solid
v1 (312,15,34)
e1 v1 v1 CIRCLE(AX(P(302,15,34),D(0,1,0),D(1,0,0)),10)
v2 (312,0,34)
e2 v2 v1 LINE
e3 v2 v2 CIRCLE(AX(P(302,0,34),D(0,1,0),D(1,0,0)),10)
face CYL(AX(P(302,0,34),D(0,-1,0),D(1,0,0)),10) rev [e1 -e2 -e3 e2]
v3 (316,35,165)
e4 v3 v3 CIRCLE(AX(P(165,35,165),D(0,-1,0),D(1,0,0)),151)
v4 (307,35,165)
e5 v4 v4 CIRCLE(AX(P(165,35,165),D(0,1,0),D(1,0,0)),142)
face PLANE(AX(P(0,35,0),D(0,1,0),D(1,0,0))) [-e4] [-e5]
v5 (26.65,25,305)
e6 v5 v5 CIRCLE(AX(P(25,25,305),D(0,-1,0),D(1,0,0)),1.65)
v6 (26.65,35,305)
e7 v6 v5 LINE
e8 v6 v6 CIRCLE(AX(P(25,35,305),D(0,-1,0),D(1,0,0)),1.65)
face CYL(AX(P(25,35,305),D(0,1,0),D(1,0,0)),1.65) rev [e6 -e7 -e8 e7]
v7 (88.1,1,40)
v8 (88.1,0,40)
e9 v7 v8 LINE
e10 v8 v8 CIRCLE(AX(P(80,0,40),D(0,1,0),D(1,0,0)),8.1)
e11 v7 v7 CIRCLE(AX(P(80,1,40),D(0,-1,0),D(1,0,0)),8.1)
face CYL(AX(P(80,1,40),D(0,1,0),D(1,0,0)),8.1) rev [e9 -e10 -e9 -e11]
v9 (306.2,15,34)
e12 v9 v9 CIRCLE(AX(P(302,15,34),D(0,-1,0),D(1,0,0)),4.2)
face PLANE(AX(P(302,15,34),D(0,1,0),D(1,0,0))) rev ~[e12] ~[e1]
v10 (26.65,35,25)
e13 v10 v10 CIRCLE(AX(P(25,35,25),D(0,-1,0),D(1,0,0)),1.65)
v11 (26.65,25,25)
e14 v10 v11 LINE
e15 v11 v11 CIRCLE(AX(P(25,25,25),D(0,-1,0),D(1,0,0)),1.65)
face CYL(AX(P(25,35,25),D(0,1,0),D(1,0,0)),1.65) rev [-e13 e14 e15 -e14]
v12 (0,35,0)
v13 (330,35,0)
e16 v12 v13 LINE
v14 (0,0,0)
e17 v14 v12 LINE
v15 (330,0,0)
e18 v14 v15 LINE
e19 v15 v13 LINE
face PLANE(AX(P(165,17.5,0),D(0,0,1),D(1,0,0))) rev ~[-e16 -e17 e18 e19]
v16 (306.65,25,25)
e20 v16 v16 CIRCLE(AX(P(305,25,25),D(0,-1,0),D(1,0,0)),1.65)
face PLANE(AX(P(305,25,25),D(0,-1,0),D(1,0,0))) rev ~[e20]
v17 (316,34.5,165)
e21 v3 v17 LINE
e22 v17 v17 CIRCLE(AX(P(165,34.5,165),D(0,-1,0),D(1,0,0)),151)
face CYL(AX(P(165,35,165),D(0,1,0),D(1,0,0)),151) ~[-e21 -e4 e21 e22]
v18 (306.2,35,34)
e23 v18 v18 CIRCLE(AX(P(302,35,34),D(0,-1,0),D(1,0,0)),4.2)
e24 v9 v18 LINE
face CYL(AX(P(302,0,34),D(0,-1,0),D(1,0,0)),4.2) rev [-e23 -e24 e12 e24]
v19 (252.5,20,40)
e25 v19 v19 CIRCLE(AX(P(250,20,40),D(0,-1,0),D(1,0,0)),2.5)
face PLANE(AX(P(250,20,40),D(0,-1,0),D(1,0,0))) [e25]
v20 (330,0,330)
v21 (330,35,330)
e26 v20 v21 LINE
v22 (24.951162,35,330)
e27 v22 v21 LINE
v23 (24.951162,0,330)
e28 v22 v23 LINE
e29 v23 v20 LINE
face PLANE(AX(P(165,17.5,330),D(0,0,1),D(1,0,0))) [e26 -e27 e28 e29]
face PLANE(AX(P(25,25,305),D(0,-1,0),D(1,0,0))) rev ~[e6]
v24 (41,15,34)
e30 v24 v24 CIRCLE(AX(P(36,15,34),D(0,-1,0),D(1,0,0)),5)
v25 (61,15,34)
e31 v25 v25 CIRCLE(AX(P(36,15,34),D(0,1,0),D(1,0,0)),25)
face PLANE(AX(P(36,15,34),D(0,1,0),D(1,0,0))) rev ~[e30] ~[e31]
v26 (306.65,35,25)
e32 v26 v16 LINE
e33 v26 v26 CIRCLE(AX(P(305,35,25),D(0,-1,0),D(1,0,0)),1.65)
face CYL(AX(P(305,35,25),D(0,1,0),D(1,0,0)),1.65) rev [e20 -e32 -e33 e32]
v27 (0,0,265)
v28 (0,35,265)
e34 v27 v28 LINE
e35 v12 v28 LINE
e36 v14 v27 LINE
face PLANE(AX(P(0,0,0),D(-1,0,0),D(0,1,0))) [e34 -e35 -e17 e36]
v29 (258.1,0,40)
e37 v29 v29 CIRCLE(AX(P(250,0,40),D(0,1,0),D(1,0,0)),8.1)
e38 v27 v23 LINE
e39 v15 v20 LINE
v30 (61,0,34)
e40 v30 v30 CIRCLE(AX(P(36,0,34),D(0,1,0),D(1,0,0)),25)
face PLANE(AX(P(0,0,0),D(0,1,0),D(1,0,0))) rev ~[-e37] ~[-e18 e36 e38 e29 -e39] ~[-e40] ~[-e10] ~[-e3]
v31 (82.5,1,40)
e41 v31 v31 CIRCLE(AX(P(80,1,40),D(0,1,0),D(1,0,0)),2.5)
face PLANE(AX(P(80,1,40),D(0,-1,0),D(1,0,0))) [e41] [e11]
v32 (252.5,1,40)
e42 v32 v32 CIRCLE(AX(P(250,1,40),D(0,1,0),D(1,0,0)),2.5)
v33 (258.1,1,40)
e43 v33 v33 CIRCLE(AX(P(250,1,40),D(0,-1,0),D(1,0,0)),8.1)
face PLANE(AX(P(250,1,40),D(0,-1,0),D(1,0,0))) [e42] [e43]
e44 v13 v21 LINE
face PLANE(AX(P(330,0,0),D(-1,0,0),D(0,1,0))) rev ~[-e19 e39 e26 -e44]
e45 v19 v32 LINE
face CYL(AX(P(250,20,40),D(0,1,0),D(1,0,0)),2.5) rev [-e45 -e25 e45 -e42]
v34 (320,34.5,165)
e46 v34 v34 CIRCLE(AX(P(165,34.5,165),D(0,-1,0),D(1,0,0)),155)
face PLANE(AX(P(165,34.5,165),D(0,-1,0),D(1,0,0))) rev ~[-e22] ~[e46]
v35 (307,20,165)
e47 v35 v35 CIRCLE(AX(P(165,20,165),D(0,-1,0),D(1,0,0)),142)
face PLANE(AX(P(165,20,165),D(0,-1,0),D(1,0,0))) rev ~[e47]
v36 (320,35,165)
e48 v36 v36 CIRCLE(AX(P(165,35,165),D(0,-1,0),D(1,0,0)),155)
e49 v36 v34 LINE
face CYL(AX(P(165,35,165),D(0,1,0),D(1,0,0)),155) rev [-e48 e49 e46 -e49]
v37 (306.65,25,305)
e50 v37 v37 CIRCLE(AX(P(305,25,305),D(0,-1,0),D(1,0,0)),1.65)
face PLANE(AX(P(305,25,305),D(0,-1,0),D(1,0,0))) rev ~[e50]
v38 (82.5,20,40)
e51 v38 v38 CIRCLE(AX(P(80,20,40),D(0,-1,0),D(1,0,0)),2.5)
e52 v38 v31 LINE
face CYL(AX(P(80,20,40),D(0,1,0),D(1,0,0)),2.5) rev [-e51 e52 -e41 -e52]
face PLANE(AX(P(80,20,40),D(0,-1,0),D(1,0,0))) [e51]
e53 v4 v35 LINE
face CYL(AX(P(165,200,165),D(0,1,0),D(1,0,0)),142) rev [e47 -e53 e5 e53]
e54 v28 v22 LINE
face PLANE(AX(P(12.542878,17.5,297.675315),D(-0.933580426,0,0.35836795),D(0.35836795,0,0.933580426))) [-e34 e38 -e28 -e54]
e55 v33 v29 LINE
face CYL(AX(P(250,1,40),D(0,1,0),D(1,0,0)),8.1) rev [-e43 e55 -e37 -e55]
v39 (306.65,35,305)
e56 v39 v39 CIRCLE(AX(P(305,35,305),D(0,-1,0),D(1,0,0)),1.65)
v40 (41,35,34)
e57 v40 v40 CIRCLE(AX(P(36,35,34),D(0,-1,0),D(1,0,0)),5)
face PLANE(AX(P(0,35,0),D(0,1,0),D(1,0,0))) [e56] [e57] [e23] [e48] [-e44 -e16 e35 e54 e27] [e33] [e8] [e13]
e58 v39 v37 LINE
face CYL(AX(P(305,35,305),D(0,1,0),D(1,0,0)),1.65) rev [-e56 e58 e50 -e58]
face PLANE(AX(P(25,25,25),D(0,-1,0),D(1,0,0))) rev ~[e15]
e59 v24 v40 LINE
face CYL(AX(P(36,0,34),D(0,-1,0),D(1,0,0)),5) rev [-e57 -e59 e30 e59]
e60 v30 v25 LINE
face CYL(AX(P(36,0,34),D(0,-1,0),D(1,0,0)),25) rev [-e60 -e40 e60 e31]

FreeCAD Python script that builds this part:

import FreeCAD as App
import Part
import Sketcher
from FreeCAD import Vector
Q = App.Units.Quantity


def add_polygon(sketch, points):
    """Adds a closed chain of lines whose ends are joined by coincident constraints."""
    first, n = sketch.GeometryCount, len(points)
    for a, b in zip(points, points[1:] + points[:1]):
        sketch.addGeometry(Part.LineSegment(App.Vector(*a, 0), App.Vector(*b, 0)), False)
    for i in range(n):
        sketch.addConstraint(Sketcher.Constraint("Coincident", first + i, 2, first + (i + 1) % n, 1))

doc = App.newDocument("Part")
body = doc.addObject("PartDesign::Body", "Body")

# Sketch on XZ plane
sketch1 = doc.addObject("Sketcher::SketchObject", "Sketch")
body.addObject(sketch1)
sketch1.AttachmentSupport = (doc.XZ_Plane, [""])
sketch1.MapMode = "FlatFace"
sketch1.AttachmentOffset = App.Placement(Vector(0, 0, -35), App.Rotation())
sketch1.addGeometry(Part.Circle(Vector(25, 25, 0), Vector(0, 0, 1), 1.6), False)
sketch1.addConstraint([
    Sketcher.Constraint("Diameter", 0, Q("3.3 mm")),
    Sketcher.Constraint("DistanceX", -1, 1, 0, 3, Q("25 mm")),
    Sketcher.Constraint("DistanceY", -1, 1, 0, 3, Q("25 mm")),
])
pad1 = doc.addObject("PartDesign::Pad", "Pad")
body.addObject(pad1)
pad1.Profile = sketch1
pad1.Length = 10
body2 = doc.addObject("PartDesign::Body", "Body001")

# Sketch on XZ plane
sketch2 = doc.addObject("Sketcher::SketchObject", "Sketch001")
body2.addObject(sketch2)
sketch2.AttachmentSupport = (doc.getObject("XZ_Plane001"), [""])
sketch2.MapMode = "FlatFace"
sketch2.AttachmentOffset = App.Placement(Vector(0, 0, -35), App.Rotation())
sketch2.addGeometry(Part.Circle(Vector(305, 25, 0), Vector(0, 0, 1), 1.6), False)
sketch2.addConstraint([
    Sketcher.Constraint("Diameter", 0, Q("3.3 mm")),
    Sketcher.Constraint("DistanceX", -1, 1, 0, 3, Q("305 mm")),
    Sketcher.Constraint("DistanceY", -1, 1, 0, 3, Q("25 mm")),
])
pad2 = doc.addObject("PartDesign::Pad", "Pad001")
body2.addObject(pad2)
pad2.Profile = sketch2
pad2.Length = 10
body3 = doc.addObject("PartDesign::Body", "Body002")

# Sketch on XZ plane
sketch3 = doc.addObject("Sketcher::SketchObject", "Sketch002")
body3.addObject(sketch3)
sketch3.AttachmentSupport = (doc.getObject("XZ_Plane002"), [""])
sketch3.MapMode = "FlatFace"
sketch3.AttachmentOffset = App.Placement(Vector(0, 0, -35), App.Rotation())
sketch3.addGeometry(Part.Circle(Vector(25, 305, 0), Vector(0, 0, 1), 1.6), False)
sketch3.addConstraint([
    Sketcher.Constraint("Diameter", 0, Q("3.3 mm")),
    Sketcher.Constraint("DistanceX", -1, 1, 0, 3, Q("25 mm")),
    Sketcher.Constraint("DistanceY", -1, 1, 0, 3, Q("305 mm")),
])
pad3 = doc.addObject("PartDesign::Pad", "Pad002")
body3.addObject(pad3)
pad3.Profile = sketch3
pad3.Length = 10
body4 = doc.addObject("PartDesign::Body", "Body003")
body4.AllowCompound = True

# Sketch on XZ plane
sketch4 = doc.addObject("Sketcher::SketchObject", "Sketch003")
body4.addObject(sketch4)
sketch4.AttachmentSupport = (doc.getObject("XZ_Plane003"), [""])
sketch4.MapMode = "FlatFace"
sketch4.AttachmentOffset = App.Placement(Vector(0, 0, -35), App.Rotation())
sketch4.addGeometry(Part.Circle(Vector(305, 305, 0), Vector(0, 0, 1), 1.6), False)
sketch4.addConstraint([
    Sketcher.Constraint("Diameter", 0, Q("3.3 mm")),
    Sketcher.Constraint("DistanceX", -1, 1, 0, 3, Q("305 mm")),
    Sketcher.Constraint("DistanceY", -1, 1, 0, 3, Q("305 mm")),
])
pad4 = doc.addObject("PartDesign::Pad", "Pad003")
body4.addObject(pad4)
pad4.Profile = sketch4
pad4.Length = 10
doc.recompute()

boolean = doc.addObject("PartDesign::Boolean", "Boolean")
body4.addObject(boolean)
boolean.Type = "Fuse"
boolean.addObjects([body])
doc.recompute()

boolean2 = doc.addObject("PartDesign::Boolean", "Boolean001")
body4.addObject(boolean2)
boolean2.Type = "Fuse"
boolean2.addObjects([body2])
doc.recompute()

boolean3 = doc.addObject("PartDesign::Boolean", "Boolean002")
body4.addObject(boolean3)
boolean3.Type = "Fuse"
boolean3.addObjects([body3])
body5 = doc.addObject("PartDesign::Body", "Body004")

# Sketch on XZ plane
sketch5 = doc.addObject("Sketcher::SketchObject", "Sketch004")
body5.addObject(sketch5)
sketch5.AttachmentSupport = (doc.getObject("XZ_Plane004"), [""])
sketch5.MapMode = "FlatFace"
sketch5.AttachmentOffset = App.Placement(Vector(0, 0, -1), App.Rotation())
sketch5.addGeometry(Part.Circle(Vector(80, 40, 0), Vector(0, 0, 1), 8), False)
sketch5.addConstraint([
    Sketcher.Constraint("Diameter", 0, Q("16.2 mm")),
    Sketcher.Constraint("DistanceX", -1, 1, 0, 3, Q("80 mm")),
    Sketcher.Constraint("DistanceY", -1, 1, 0, 3, Q("40 mm")),
])
pad5 = doc.addObject("PartDesign::Pad", "Pad004")
body5.addObject(pad5)
pad5.Profile = sketch5
pad5.Length = 20
body6 = doc.addObject("PartDesign::Body", "Body005")
body6.AllowCompound = True

# Sketch on XZ plane
sketch6 = doc.addObject("Sketcher::SketchObject", "Sketch005")
body6.addObject(sketch6)
sketch6.AttachmentSupport = (doc.getObject("XZ_Plane005"), [""])
sketch6.MapMode = "FlatFace"
sketch6.AttachmentOffset = App.Placement(Vector(0, 0, -1), App.Rotation())
sketch6.addGeometry(Part.Circle(Vector(250, 40, 0), Vector(0, 0, 1), 8), False)
sketch6.addConstraint([
    Sketcher.Constraint("Diameter", 0, Q("16.2 mm")),
    Sketcher.Constraint("DistanceX", -1, 1, 0, 3, Q("250 mm")),
    Sketcher.Constraint("DistanceY", -1, 1, 0, 3, Q("40 mm")),
])
pad6 = doc.addObject("PartDesign::Pad", "Pad005")
body6.addObject(pad6)
pad6.Profile = sketch6
pad6.Length = 20
doc.recompute()

boolean4 = doc.addObject("PartDesign::Boolean", "Boolean003")
body6.addObject(boolean4)
boolean4.Type = "Fuse"
boolean4.addObjects([body5])
body7 = doc.addObject("PartDesign::Body", "Body006")

# Sketch on XZ plane
sketch7 = doc.addObject("Sketcher::SketchObject", "Sketch006")
body7.addObject(sketch7)
sketch7.AttachmentSupport = (doc.getObject("XZ_Plane006"), [""])
sketch7.MapMode = "FlatFace"
sketch7.AttachmentOffset = App.Placement(Vector(0, 0, -20), App.Rotation())
sketch7.addGeometry(Part.Circle(Vector(250, 40, 0), Vector(0, 0, 1), 2.5), False)
sketch7.addConstraint([
    Sketcher.Constraint("Diameter", 0, Q("5 mm")),
    Sketcher.Constraint("DistanceX", -1, 1, 0, 3, Q("250 mm")),
    Sketcher.Constraint("DistanceY", -1, 1, 0, 3, Q("40 mm")),
])
pad7 = doc.addObject("PartDesign::Pad", "Pad006")
body7.addObject(pad7)
pad7.Profile = sketch7
pad7.Length = 20
body8 = doc.addObject("PartDesign::Body", "Body007")
body8.AllowCompound = True

# Sketch on XZ plane
sketch8 = doc.addObject("Sketcher::SketchObject", "Sketch007")
body8.addObject(sketch8)
sketch8.AttachmentSupport = (doc.getObject("XZ_Plane007"), [""])
sketch8.MapMode = "FlatFace"
sketch8.AttachmentOffset = App.Placement(Vector(0, 0, -20), App.Rotation())
sketch8.addGeometry(Part.Circle(Vector(80, 40, 0), Vector(0, 0, 1), 2.5), False)
sketch8.addConstraint([
    Sketcher.Constraint("Diameter", 0, Q("5 mm")),
    Sketcher.Constraint("DistanceX", -1, 1, 0, 3, Q("80 mm")),
    Sketcher.Constraint("DistanceY", -1, 1, 0, 3, Q("40 mm")),
])
pad8 = doc.addObject("PartDesign::Pad", "Pad007")
body8.addObject(pad8)
pad8.Profile = sketch8
pad8.Length = 20
doc.recompute()

boolean5 = doc.addObject("PartDesign::Boolean", "Boolean004")
body8.addObject(boolean5)
boolean5.Type = "Fuse"
boolean5.addObjects([body7])
body9 = doc.addObject("PartDesign::Body", "Body008")

# Sketch on XZ plane
sketch9 = doc.addObject("Sketcher::SketchObject", "Sketch008")
body9.addObject(sketch9)
sketch9.AttachmentSupport = (doc.getObject("XZ_Plane008"), [""])
sketch9.MapMode = "FlatFace"
sketch9.AttachmentOffset = App.Placement(Vector(0, 0, -200), App.Rotation())
sketch9.addGeometry(Part.Circle(Vector(165, 165, 0), Vector(0, 0, 1), 142), False)
sketch9.addConstraint([
    Sketcher.Constraint("Diameter", 0, Q("284 mm")),
    Sketcher.Constraint("DistanceX", -1, 1, 0, 3, Q("165 mm")),
    Sketcher.Constraint("DistanceY", -1, 1, 0, 3, Q("165 mm")),
])
pad9 = doc.addObject("PartDesign::Pad", "Pad008")
body9.addObject(pad9)
pad9.Profile = sketch9
pad9.Length = 180
body10 = doc.addObject("PartDesign::Body", "Body009")

# Sketch on XY plane
sketch10 = doc.addObject("Sketcher::SketchObject", "Sketch009")
body10.addObject(sketch10)
sketch10.AttachmentSupport = (doc.getObject("XY_Plane009"), [""])
sketch10.MapMode = "FlatFace"
sketch10.addGeometry(Part.Circle(Vector(0, 0, 0), Vector(0, 0, 1), 151), False)
sketch10.addConstraint([
    Sketcher.Constraint("Coincident", 0, 3, -1, 1),
    Sketcher.Constraint("Diameter", 0, Q("302 mm")),
])
pad10 = doc.addObject("PartDesign::Pad", "Pad009")
body10.addObject(pad10)
pad10.Profile = sketch10
pad10.Length = 0.5
body11 = doc.addObject("PartDesign::Body", "Body010")

# Sketch on XY plane
sketch11 = doc.addObject("Sketcher::SketchObject", "Sketch010")
body11.addObject(sketch11)
sketch11.AttachmentSupport = (doc.getObject("XY_Plane010"), [""])
sketch11.MapMode = "FlatFace"
sketch11.addGeometry(Part.Circle(Vector(0, 0, 0), Vector(0, 0, 1), 155), False)
sketch11.addConstraint([
    Sketcher.Constraint("Coincident", 0, 3, -1, 1),
    Sketcher.Constraint("Diameter", 0, Q("310 mm")),
])
pad11 = doc.addObject("PartDesign::Pad", "Pad010")
body11.addObject(pad11)
pad11.Profile = sketch11
pad11.Length = 0.5
doc.recompute()

boolean6 = doc.addObject("PartDesign::Boolean", "Boolean005")
body11.addObject(boolean6)
boolean6.Type = "Cut"
boolean6.addObjects([body10])
body12 = doc.addObject("PartDesign::Body", "Body011")
doc.recompute()

body11.Placement = App.Placement(Vector(165, 35, 165), App.Rotation(Vector(1, 0, 0), 90))
boolean7 = doc.addObject("PartDesign::Boolean", "Boolean006")
body12.addObject(boolean7)
boolean7.Type = "Fuse"
boolean7.addObjects([body11])
body13 = doc.addObject("PartDesign::Body", "Body012")

# Sketch on XZ plane
sketch12 = doc.addObject("Sketcher::SketchObject", "Sketch011")
body13.addObject(sketch12)
sketch12.AttachmentSupport = (doc.getObject("XZ_Plane012"), [""])
sketch12.MapMode = "FlatFace"
sketch12.addGeometry(Part.Circle(Vector(36, 34, 0), Vector(0, 0, 1), 25), False)
sketch12.addConstraint([
    Sketcher.Constraint("Diameter", 0, Q("50 mm")),
    Sketcher.Constraint("DistanceX", -1, 1, 0, 3, Q("36 mm")),
    Sketcher.Constraint("DistanceY", -1, 1, 0, 3, Q("34 mm")),
])
pad12 = doc.addObject("PartDesign::Pad", "Pad011")
body13.addObject(pad12)
pad12.Profile = sketch12
pad12.Length = 15
pad12.Reversed = True
body14 = doc.addObject("PartDesign::Body", "Body013")

# Sketch on XZ plane
sketch13 = doc.addObject("Sketcher::SketchObject", "Sketch012")
body14.addObject(sketch13)
sketch13.AttachmentSupport = (doc.getObject("XZ_Plane013"), [""])
sketch13.MapMode = "FlatFace"
sketch13.addGeometry(Part.Circle(Vector(36, 34, 0), Vector(0, 0, 1), 5), False)
sketch13.addConstraint([
    Sketcher.Constraint("Diameter", 0, Q("10 mm")),
    Sketcher.Constraint("DistanceX", -1, 1, 0, 3, Q("36 mm")),
    Sketcher.Constraint("DistanceY", -1, 1, 0, 3, Q("34 mm")),
])
pad13 = doc.addObject("PartDesign::Pad", "Pad012")
body14.addObject(pad13)
pad13.Profile = sketch13
pad13.Length = 40
pad13.Reversed = True
doc.recompute()

boolean8 = doc.addObject("PartDesign::Boolean", "Boolean007")
body14.addObject(boolean8)
boolean8.Type = "Fuse"
boolean8.addObjects([body13])
body15 = doc.addObject("PartDesign::Body", "Body014")

# Sketch on XZ plane
sketch14 = doc.addObject("Sketcher::SketchObject", "Sketch013")
body15.addObject(sketch14)
sketch14.AttachmentSupport = (doc.getObject("XZ_Plane014"), [""])
sketch14.MapMode = "FlatFace"
sketch14.addGeometry(Part.Circle(Vector(302, 34, 0), Vector(0, 0, 1), 4.2), False)
sketch14.addConstraint([
    Sketcher.Constraint("Diameter", 0, Q("8.4 mm")),
    Sketcher.Constraint("DistanceX", -1, 1, 0, 3, Q("302 mm")),
    Sketcher.Constraint("DistanceY", -1, 1, 0, 3, Q("34 mm")),
])
pad14 = doc.addObject("PartDesign::Pad", "Pad013")
body15.addObject(pad14)
pad14.Profile = sketch14
pad14.Length = 40
pad14.Reversed = True
body16 = doc.addObject("PartDesign::Body", "Body015")
body16.AllowCompound = True

# Sketch on XZ plane
sketch15 = doc.addObject("Sketcher::SketchObject", "Sketch014")
body16.addObject(sketch15)
sketch15.AttachmentSupport = (doc.getObject("XZ_Plane015"), [""])
sketch15.MapMode = "FlatFace"
sketch15.addGeometry(Part.Circle(Vector(302, 34, 0), Vector(0, 0, 1), 10), False)
sketch15.addConstraint([
    Sketcher.Constraint("Diameter", 0, Q("20 mm")),
    Sketcher.Constraint("DistanceX", -1, 1, 0, 3, Q("302 mm")),
    Sketcher.Constraint("DistanceY", -1, 1, 0, 3, Q("34 mm")),
])
pad15 = doc.addObject("PartDesign::Pad", "Pad014")
body16.addObject(pad15)
pad15.Profile = sketch15
pad15.Length = 15
pad15.Reversed = True
doc.recompute()

boolean9 = doc.addObject("PartDesign::Boolean", "Boolean008")
body16.addObject(boolean9)
boolean9.Type = "Fuse"
boolean9.addObjects([body15])
doc.recompute()

boolean10 = doc.addObject("PartDesign::Boolean", "Boolean009")
body16.addObject(boolean10)
boolean10.Type = "Fuse"
boolean10.addObjects([body14])
body17 = doc.addObject("PartDesign::Body", "Body016")

# Sketch on XY plane
sketch16 = doc.addObject("Sketcher::SketchObject", "Sketch015")
body17.addObject(sketch16)
sketch16.AttachmentSupport = (doc.getObject("XY_Plane016"), [""])
sketch16.MapMode = "FlatFace"
add_polygon(sketch16, [(0, 35), (0, 0), (70, 0), (70, 35)])  # lines 0-3
sketch16.addConstraint([
    Sketcher.Constraint("Vertical", 0),
    Sketcher.Constraint("Horizontal", 1),
    Sketcher.Constraint("Vertical", 2),
    Sketcher.Constraint("Horizontal", 3),
    Sketcher.Constraint("Coincident", 0, 2, -1, 1),
    Sketcher.Constraint("DistanceX", 1, 1, 1, 2, Q("70 mm")),
    Sketcher.Constraint("DistanceY", 0, 2, 0, 1, Q("35 mm")),
])
pad16 = doc.addObject("PartDesign::Pad", "Pad015")
body17.addObject(pad16)
pad16.Profile = sketch16
pad16.Length = 50
body18 = doc.addObject("PartDesign::Body", "Body017")
doc.recompute()

body17.Placement = App.Placement(Vector(0, 0, 265), App.Rotation(Vector(0, -1, 0), 69))
boolean11 = doc.addObject("PartDesign::Boolean", "Boolean010")
body18.addObject(boolean11)
boolean11.Type = "Fuse"
boolean11.addObjects([body17])
body19 = doc.addObject("PartDesign::Body", "Body018")

# Sketch on XY plane
sketch17 = doc.addObject("Sketcher::SketchObject", "Sketch016")
body19.addObject(sketch17)
sketch17.AttachmentSupport = (doc.getObject("XY_Plane018"), [""])
sketch17.MapMode = "FlatFace"
add_polygon(sketch17, [(0, 35), (0, 0), (330, 0), (330, 35)])  # lines 0-3
sketch17.addConstraint([
    Sketcher.Constraint("Vertical", 0),
    Sketcher.Constraint("Horizontal", 1),
    Sketcher.Constraint("Vertical", 2),
    Sketcher.Constraint("Horizontal", 3),
    Sketcher.Constraint("Coincident", 0, 2, -1, 1),
    Sketcher.Constraint("DistanceX", 1, 1, 1, 2, Q("330 mm")),
    Sketcher.Constraint("DistanceY", 0, 2, 0, 1, Q("35 mm")),
])
pad17 = doc.addObject("PartDesign::Pad", "Pad016")
body19.addObject(pad17)
pad17.Profile = sketch17
pad17.Length = 330
doc.recompute()

boolean12 = doc.addObject("PartDesign::Boolean", "Boolean011")
body19.addObject(boolean12)
boolean12.Type = "Cut"
boolean12.addObjects([body18])
doc.recompute()

boolean13 = doc.addObject("PartDesign::Boolean", "Boolean012")
body19.addObject(boolean13)
boolean13.Type = "Cut"
boolean13.addObjects([body16])
doc.recompute()

boolean14 = doc.addObject("PartDesign::Boolean", "Boolean013")
body19.addObject(boolean14)
boolean14.Type = "Cut"
boolean14.addObjects([body12])
doc.recompute()

boolean15 = doc.addObject("PartDesign::Boolean", "Boolean014")
body19.addObject(boolean15)
boolean15.Type = "Cut"
boolean15.addObjects([body9])
doc.recompute()

boolean16 = doc.addObject("PartDesign::Boolean", "Boolean015")
body19.addObject(boolean16)
boolean16.Type = "Cut"
boolean16.addObjects([body8])
doc.recompute()

boolean17 = doc.addObject("PartDesign::Boolean", "Boolean016")
body19.addObject(boolean17)
boolean17.Type = "Cut"
boolean17.addObjects([body6])
doc.recompute()

boolean18 = doc.addObject("PartDesign::Boolean", "Boolean017")
body19.addObject(boolean18)
boolean18.Type = "Cut"
boolean18.addObjects([body4])

doc.recompute()
